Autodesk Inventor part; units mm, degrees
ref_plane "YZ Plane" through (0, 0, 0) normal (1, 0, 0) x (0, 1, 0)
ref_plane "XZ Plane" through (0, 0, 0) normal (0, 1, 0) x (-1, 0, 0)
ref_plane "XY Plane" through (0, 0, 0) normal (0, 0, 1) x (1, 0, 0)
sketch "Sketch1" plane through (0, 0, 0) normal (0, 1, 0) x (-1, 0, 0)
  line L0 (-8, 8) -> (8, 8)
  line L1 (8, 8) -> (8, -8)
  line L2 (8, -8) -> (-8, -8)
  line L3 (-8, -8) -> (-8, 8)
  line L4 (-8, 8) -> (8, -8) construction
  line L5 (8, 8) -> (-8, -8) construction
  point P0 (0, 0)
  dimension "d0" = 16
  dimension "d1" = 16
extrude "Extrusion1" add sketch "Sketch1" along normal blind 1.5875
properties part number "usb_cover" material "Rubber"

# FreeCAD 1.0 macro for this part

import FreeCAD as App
import Part
import Sketcher

V = App.Vector

doc = App.newDocument("Part")
body = doc.addObject("PartDesign::Body", "Body")

sketch1 = body.newObject("Sketcher::SketchObject", "Sketch")
sketch1.AttachmentSupport = (doc.getObject("XZ_Plane"), [""])
sketch1.MapMode = "FlatFace"
sketch1.addGeometry([
    Part.LineSegment(V(-8, 8, 0), V(8, 8, 0)),
    Part.LineSegment(V(8, 8, 0), V(8, -8, 0)),
    Part.LineSegment(V(8, -8, 0), V(-8, -8, 0)),
    Part.LineSegment(V(-8, -8, 0), V(-8, 8, 0)),
], False)
sketch1.addConstraint([
    Sketcher.Constraint("Coincident", 0, 2, 1, 1),
    Sketcher.Constraint("Coincident", 1, 2, 2, 1),
    Sketcher.Constraint("Coincident", 2, 2, 3, 1),
    Sketcher.Constraint("Coincident", 3, 2, 0, 1),
    Sketcher.Constraint("Horizontal", 0),
    Sketcher.Constraint("Vertical", 1),
    Sketcher.Constraint("Horizontal", 2),
    Sketcher.Constraint("Vertical", 3),
    Sketcher.Constraint("Symmetric", 0, 2, 2, 2, -1, 1),
    Sketcher.Constraint("Equal", 2, 1),
    Sketcher.Constraint("DistanceX", 0, 1, 0, 2, 16.0),
])
pad1 = body.newObject("PartDesign::Pad", "Pad")
pad1.Profile = sketch1
pad1.Length = 1.5875
pad1.Reversed = True

doc.recompute()
